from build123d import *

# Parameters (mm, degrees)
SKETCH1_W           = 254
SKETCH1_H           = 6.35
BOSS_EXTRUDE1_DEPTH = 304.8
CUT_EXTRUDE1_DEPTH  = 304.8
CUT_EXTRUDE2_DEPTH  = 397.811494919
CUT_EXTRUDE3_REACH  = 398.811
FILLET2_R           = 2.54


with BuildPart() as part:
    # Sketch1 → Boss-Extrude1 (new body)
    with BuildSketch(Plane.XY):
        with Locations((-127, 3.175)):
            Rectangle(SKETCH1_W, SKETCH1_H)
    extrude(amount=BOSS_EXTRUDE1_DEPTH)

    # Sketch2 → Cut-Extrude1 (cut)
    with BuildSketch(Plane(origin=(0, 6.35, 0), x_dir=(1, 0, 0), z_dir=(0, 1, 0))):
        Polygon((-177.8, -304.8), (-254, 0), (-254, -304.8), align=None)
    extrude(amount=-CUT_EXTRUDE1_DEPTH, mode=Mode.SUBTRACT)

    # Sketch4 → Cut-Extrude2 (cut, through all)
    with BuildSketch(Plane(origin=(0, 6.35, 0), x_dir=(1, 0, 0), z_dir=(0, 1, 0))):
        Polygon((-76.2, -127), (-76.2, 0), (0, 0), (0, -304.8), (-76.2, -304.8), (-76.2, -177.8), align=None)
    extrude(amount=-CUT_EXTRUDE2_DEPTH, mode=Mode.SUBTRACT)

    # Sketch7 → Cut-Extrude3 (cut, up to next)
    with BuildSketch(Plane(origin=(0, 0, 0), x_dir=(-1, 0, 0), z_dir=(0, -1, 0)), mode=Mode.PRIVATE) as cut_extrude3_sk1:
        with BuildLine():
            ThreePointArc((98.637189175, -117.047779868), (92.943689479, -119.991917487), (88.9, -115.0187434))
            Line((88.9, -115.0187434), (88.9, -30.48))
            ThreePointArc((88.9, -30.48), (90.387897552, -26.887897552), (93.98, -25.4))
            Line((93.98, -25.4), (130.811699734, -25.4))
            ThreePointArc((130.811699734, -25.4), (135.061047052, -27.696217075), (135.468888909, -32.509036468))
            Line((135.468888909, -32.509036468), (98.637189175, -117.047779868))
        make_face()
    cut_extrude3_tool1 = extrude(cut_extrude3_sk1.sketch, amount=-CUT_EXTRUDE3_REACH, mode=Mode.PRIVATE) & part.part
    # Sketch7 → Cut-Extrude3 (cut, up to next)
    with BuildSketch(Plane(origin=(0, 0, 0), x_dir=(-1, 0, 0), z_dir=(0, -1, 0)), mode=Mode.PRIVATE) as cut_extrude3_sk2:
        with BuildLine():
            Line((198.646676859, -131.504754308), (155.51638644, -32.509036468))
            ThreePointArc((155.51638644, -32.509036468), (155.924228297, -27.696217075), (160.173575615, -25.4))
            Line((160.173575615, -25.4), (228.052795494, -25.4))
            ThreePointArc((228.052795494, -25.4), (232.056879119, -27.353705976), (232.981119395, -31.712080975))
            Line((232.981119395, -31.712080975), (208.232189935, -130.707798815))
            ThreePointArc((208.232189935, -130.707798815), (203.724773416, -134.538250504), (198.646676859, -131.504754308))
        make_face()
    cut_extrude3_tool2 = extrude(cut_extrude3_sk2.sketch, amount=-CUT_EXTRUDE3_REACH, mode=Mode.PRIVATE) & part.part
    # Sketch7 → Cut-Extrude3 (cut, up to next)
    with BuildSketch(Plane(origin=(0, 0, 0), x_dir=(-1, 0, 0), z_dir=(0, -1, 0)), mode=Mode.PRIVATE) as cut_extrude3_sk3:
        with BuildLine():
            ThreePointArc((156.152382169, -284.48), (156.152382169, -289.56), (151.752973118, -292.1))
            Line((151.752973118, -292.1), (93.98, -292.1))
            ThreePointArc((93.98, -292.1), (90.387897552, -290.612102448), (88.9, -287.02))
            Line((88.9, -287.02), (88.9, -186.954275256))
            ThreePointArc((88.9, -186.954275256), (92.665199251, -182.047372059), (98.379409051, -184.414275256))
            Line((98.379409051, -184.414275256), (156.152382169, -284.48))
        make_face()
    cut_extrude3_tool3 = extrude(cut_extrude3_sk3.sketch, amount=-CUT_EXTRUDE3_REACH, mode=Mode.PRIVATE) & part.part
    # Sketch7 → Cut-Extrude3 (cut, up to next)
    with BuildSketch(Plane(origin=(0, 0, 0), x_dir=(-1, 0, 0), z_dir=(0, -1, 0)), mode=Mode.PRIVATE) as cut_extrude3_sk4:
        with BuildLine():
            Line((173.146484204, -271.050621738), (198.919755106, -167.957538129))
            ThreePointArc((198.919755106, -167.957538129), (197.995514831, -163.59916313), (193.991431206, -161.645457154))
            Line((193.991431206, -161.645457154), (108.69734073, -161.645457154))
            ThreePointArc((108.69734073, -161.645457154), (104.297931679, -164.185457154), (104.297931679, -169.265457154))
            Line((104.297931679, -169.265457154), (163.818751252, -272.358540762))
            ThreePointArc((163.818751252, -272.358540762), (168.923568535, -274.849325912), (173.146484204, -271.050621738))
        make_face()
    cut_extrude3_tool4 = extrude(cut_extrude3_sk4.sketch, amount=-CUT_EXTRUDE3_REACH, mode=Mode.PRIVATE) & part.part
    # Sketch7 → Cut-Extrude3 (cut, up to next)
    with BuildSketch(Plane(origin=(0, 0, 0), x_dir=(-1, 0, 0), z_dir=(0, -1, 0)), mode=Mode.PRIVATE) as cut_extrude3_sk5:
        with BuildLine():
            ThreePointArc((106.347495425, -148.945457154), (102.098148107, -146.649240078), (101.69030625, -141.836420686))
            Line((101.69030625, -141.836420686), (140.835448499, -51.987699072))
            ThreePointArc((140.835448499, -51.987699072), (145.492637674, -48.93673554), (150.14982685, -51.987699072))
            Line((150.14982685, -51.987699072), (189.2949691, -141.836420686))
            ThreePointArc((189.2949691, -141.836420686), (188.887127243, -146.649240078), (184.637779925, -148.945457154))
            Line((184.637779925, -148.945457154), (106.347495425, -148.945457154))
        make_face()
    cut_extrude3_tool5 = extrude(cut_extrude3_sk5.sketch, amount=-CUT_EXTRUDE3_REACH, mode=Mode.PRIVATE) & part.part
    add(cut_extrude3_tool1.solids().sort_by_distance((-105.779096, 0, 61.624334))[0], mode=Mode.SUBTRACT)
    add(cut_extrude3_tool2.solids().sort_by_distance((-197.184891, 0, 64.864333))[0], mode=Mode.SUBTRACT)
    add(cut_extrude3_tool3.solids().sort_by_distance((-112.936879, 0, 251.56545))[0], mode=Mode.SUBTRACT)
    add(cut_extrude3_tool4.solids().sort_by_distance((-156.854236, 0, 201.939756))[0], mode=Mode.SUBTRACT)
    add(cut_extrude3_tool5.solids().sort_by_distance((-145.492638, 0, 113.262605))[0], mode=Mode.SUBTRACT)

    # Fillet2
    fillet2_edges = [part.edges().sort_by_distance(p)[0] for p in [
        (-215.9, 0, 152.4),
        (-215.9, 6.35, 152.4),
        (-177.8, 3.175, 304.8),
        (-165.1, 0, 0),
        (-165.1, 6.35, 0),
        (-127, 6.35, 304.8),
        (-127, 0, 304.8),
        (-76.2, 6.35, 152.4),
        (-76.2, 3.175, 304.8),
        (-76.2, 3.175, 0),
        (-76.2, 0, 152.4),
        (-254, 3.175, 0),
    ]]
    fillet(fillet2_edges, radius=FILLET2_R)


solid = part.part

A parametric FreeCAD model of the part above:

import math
import FreeCAD as App
import Part
import Sketcher
Q = App.Units.Quantity


def edges_at(feature, points):
    """Names of the edges that pass closest to the given points."""
    edges = feature.Shape.Edges
    near = lambda p: min(range(len(edges)), key=lambda i: edges[i].distToShape(Part.Vertex(*p))[0])
    return sorted({f"Edge{near(p) + 1}" for p in points})

doc = App.newDocument("Part")
body = doc.addObject("PartDesign::Body", "Body")

# Sketch on XY plane
sketch1 = body.newObject("Sketcher::SketchObject", "Sketch")
sketch1.AttachmentSupport = (doc.getObject("XY_Plane"), [""])
sketch1.MapMode = "FlatFace"
sketch1.addGeometry(Part.LineSegment(App.Vector(-254, 6, 0), App.Vector(-254, 0, 0)), False)
sketch1.addGeometry(Part.LineSegment(App.Vector(-254, 0, 0), App.Vector(0, 0, 0)), False)
sketch1.addGeometry(Part.LineSegment(App.Vector(0, 0, 0), App.Vector(0, 6, 0)), False)
sketch1.addGeometry(Part.LineSegment(App.Vector(0, 6, 0), App.Vector(-254, 6, 0)), False)
sketch1.addConstraint(Sketcher.Constraint("Coincident", 0, 2, 1, 1))
sketch1.addConstraint(Sketcher.Constraint("Coincident", 1, 2, 2, 1))
sketch1.addConstraint(Sketcher.Constraint("Coincident", 2, 2, 3, 1))
sketch1.addConstraint(Sketcher.Constraint("Coincident", 3, 2, 0, 1))
sketch1.addConstraint(Sketcher.Constraint("Vertical", 0))
sketch1.addConstraint(Sketcher.Constraint("Horizontal", 1))
sketch1.addConstraint(Sketcher.Constraint("Vertical", 2))
sketch1.addConstraint(Sketcher.Constraint("Horizontal", 3))
sketch1.addConstraint(Sketcher.Constraint("Coincident", 1, 2, -1, 1))
sketch1.addConstraint(Sketcher.Constraint("DistanceX", 1, 1, 1, 2, Q("10 in")))
sketch1.addConstraint(Sketcher.Constraint("DistanceY", 0, 2, 0, 1, Q("0.25 in")))
pad1 = body.newObject("PartDesign::Pad", "Pad")
pad1.Profile = sketch1
pad1.Length = Q("12 in")

# Sketch on XZ plane
sketch2 = body.newObject("Sketcher::SketchObject", "Sketch001")
sketch2.AttachmentSupport = (doc.getObject("XZ_Plane"), [""])
sketch2.MapMode = "FlatFace"
sketch2.AttachmentOffset = App.Placement(App.Vector(0, 0, -0.25 * 25.4), App.Rotation())
sketch2.addGeometry(Part.LineSegment(App.Vector(-178, 305, 0), App.Vector(-254, 0, 0)), False)
sketch2.addGeometry(Part.LineSegment(App.Vector(-254, 0, 0), App.Vector(-254, 305, 0)), False)
sketch2.addGeometry(Part.LineSegment(App.Vector(-254, 305, 0), App.Vector(-178, 305, 0)), False)
sketch2.addConstraint(Sketcher.Constraint("Coincident", 0, 2, 1, 1))
sketch2.addConstraint(Sketcher.Constraint("Coincident", 1, 2, 2, 1))
sketch2.addConstraint(Sketcher.Constraint("Coincident", 2, 2, 0, 1))
sketch2.addConstraint(Sketcher.Constraint("Vertical", 1))
sketch2.addConstraint(Sketcher.Constraint("Horizontal", 2))
sketch2.addConstraint(Sketcher.Constraint("PointOnObject", 0, 2, -1))
sketch2.addConstraint(Sketcher.Constraint("DistanceX", 2, 1, 2, 2, Q("3 in")))
sketch2.addConstraint(Sketcher.Constraint("DistanceY", 1, 1, 1, 2, Q("12 in")))
sketch2.addConstraint(Sketcher.Constraint("DistanceX", 0, 2, -1, 1, Q("10 in")))
pocket1 = body.newObject("PartDesign::Pocket", "Pocket")
pocket1.Profile = sketch2
pocket1.Length = Q("12 in")
pocket1.Reversed = True

# Sketch on XZ plane
sketch3 = body.newObject("Sketcher::SketchObject", "Sketch002")
sketch3.AttachmentSupport = (doc.getObject("XZ_Plane"), [""])
sketch3.MapMode = "FlatFace"
sketch3.AttachmentOffset = App.Placement(App.Vector(0, 0, -0.25 * 25.4), App.Rotation())
sketch3.addGeometry(Part.LineSegment(App.Vector(-76, 0, 0), App.Vector(-76, 305, 0)), False)
sketch3.addGeometry(Part.LineSegment(App.Vector(-76, 305, 0), App.Vector(0, 305, 0)), False)
sketch3.addGeometry(Part.LineSegment(App.Vector(0, 305, 0), App.Vector(0, 0, 0)), False)
sketch3.addGeometry(Part.LineSegment(App.Vector(0, 0, 0), App.Vector(-76, 0, 0)), False)
sketch3.addConstraint(Sketcher.Constraint("Coincident", 0, 2, 1, 1))
sketch3.addConstraint(Sketcher.Constraint("Coincident", 1, 2, 2, 1))
sketch3.addConstraint(Sketcher.Constraint("Coincident", 2, 2, 3, 1))
sketch3.addConstraint(Sketcher.Constraint("Coincident", 3, 2, 0, 1))
sketch3.addConstraint(Sketcher.Constraint("Vertical", 0))
sketch3.addConstraint(Sketcher.Constraint("Horizontal", 1))
sketch3.addConstraint(Sketcher.Constraint("Vertical", 2))
sketch3.addConstraint(Sketcher.Constraint("Horizontal", 3))
sketch3.addConstraint(Sketcher.Constraint("Coincident", 2, 2, -1, 1))
sketch3.addConstraint(Sketcher.Constraint("DistanceX", 1, 1, 1, 2, Q("3 in")))
sketch3.addConstraint(Sketcher.Constraint("DistanceY", 0, 1, 0, 2, Q("12 in")))
pocket2 = body.newObject("PartDesign::Pocket", "Pocket001")
pocket2.Profile = sketch3
pocket2.Type = "ThroughAll"
pocket2.Reversed = True

# Sketch on XZ plane
sketch4 = body.newObject("Sketcher::SketchObject", "Sketch003")
sketch4.AttachmentSupport = (doc.getObject("XZ_Plane"), [""])
sketch4.MapMode = "FlatFace"
sketch4.addGeometry(Part.ArcOfCircle(Part.Circle(App.Vector(-94, 115, 0), App.Vector(0, 0, 1), 5), math.radians(0), math.radians(156)), False)
sketch4.addGeometry(Part.LineSegment(App.Vector(-99, 117, 0), App.Vector(-135, 33, 0)), False)
sketch4.addGeometry(Part.ArcOfCircle(Part.Circle(App.Vector(-131, 30, 0), App.Vector(0, 0, 1), 5), math.radians(156), math.radians(270)), False)
sketch4.addGeometry(Part.LineSegment(App.Vector(-131, 25, 0), App.Vector(-94, 25, 0)), False)
sketch4.addGeometry(Part.ArcOfCircle(Part.Circle(App.Vector(-94, 30, 0), App.Vector(0, 0, 1), 5), math.radians(-90), math.radians(0)), False)
sketch4.addGeometry(Part.LineSegment(App.Vector(-89, 30, 0), App.Vector(-89, 115, 0)), False)
sketch4.addConstraint(Sketcher.Constraint("Tangent", 0, 2, 1, 1))
sketch4.addConstraint(Sketcher.Constraint("Tangent", 1, 2, 2, 1))
sketch4.addConstraint(Sketcher.Constraint("Tangent", 2, 2, 3, 1))
sketch4.addConstraint(Sketcher.Constraint("Tangent", 3, 2, 4, 1))
sketch4.addConstraint(Sketcher.Constraint("Tangent", 4, 2, 5, 1))
sketch4.addConstraint(Sketcher.Constraint("Tangent", 5, 2, 0, 1))
sketch4.addConstraint(Sketcher.Constraint("Horizontal", 3))
sketch4.addConstraint(Sketcher.Constraint("Vertical", 5))
sketch4.addConstraint(Sketcher.Constraint("Equal", 0, 2))
sketch4.addConstraint(Sketcher.Constraint("Equal", 2, 4))
sketch4.addConstraint(Sketcher.Constraint("Radius", 0, Q("0.2 in")))
sketch4.addConstraint(Sketcher.Constraint("DistanceY", -1, 1, 2, 2, Q("1 in")))
sketch4.addConstraint(Sketcher.Constraint("DistanceX", 0, 3, -1, 1, Q("3.7 in")))
sketch4.addConstraint(Sketcher.Constraint("DistanceX", 3, 1, 3, 2, 36.8317))
sketch4.addConstraint(Sketcher.Constraint("DistanceY", 5, 1, 5, 2, 84.538743))
pocket3 = body.newObject("PartDesign::Pocket", "Pocket002")
pocket3.Profile = sketch4
pocket3.Type = "UpToFirst"

# Sketch on XZ plane
sketch5 = body.newObject("Sketcher::SketchObject", "Sketch004")
sketch5.AttachmentSupport = (doc.getObject("XZ_Plane"), [""])
sketch5.MapMode = "FlatFace"
sketch5.addGeometry(Part.LineSegment(App.Vector(-156, 33, 0), App.Vector(-199, 132, 0)), False)
sketch5.addGeometry(Part.ArcOfCircle(Part.Circle(App.Vector(-203, 129, 0), App.Vector(0, 0, 1), 5), math.radians(24), math.radians(166)), False)
sketch5.addGeometry(Part.LineSegment(App.Vector(-208, 131, 0), App.Vector(-233, 32, 0)), False)
sketch5.addGeometry(Part.ArcOfCircle(Part.Circle(App.Vector(-228, 30, 0), App.Vector(0, 0, 1), 5), math.radians(166), math.radians(270)), False)
sketch5.addGeometry(Part.LineSegment(App.Vector(-228, 25, 0), App.Vector(-160, 25, 0)), False)
sketch5.addGeometry(Part.ArcOfCircle(Part.Circle(App.Vector(-160, 30, 0), App.Vector(0, 0, 1), 5), math.radians(-90), math.radians(24)), False)
sketch5.addConstraint(Sketcher.Constraint("Tangent", 0, 2, 1, 1))
sketch5.addConstraint(Sketcher.Constraint("Tangent", 1, 2, 2, 1))
sketch5.addConstraint(Sketcher.Constraint("Tangent", 2, 2, 3, 1))
sketch5.addConstraint(Sketcher.Constraint("Tangent", 3, 2, 4, 1))
sketch5.addConstraint(Sketcher.Constraint("Tangent", 4, 2, 5, 1))
sketch5.addConstraint(Sketcher.Constraint("Tangent", 5, 2, 0, 1))
sketch5.addConstraint(Sketcher.Constraint("Horizontal", 4))
sketch5.addConstraint(Sketcher.Constraint("Equal", 1, 3))
sketch5.addConstraint(Sketcher.Constraint("Equal", 3, 5))
sketch5.addConstraint(Sketcher.Constraint("Radius", 1, Q("0.2 in")))
sketch5.addConstraint(Sketcher.Constraint("DistanceY", -1, 1, 3, 2, Q("1 in")))
sketch5.addConstraint(Sketcher.Constraint("DistanceX", 4, 1, 4, 2, 67.87922))
sketch5.addConstraint(Sketcher.Constraint("DistanceY", -1, 1, 1, 2, 130.707799))
sketch5.addConstraint(Sketcher.Constraint("DistanceX", 0, 2, 5, 3, 38.473101))
sketch5.addConstraint(Sketcher.Constraint("DistanceX", 1, 2, -1, 1, 208.23219))
pocket4 = body.newObject("PartDesign::Pocket", "Pocket003")
pocket4.Profile = sketch5
pocket4.Type = "UpToFirst"

# Sketch on XZ plane
sketch6 = body.newObject("Sketcher::SketchObject", "Sketch005")
sketch6.AttachmentSupport = (doc.getObject("XZ_Plane"), [""])
sketch6.MapMode = "FlatFace"
sketch6.addGeometry(Part.ArcOfCircle(Part.Circle(App.Vector(-152, 287, 0), App.Vector(0, 0, 1), 5), math.radians(90), math.radians(210)), False)
sketch6.addGeometry(Part.LineSegment(App.Vector(-156, 284, 0), App.Vector(-98, 184, 0)), False)
sketch6.addGeometry(Part.ArcOfCircle(Part.Circle(App.Vector(-94, 187, 0), App.Vector(0, 0, 1), 5), math.radians(-150), math.radians(0)), False)
sketch6.addGeometry(Part.LineSegment(App.Vector(-89, 187, 0), App.Vector(-89, 287, 0)), False)
sketch6.addGeometry(Part.ArcOfCircle(Part.Circle(App.Vector(-94, 287, 0), App.Vector(0, 0, 1), 5), math.radians(0), math.radians(90)), False)
sketch6.addGeometry(Part.LineSegment(App.Vector(-94, 292, 0), App.Vector(-152, 292, 0)), False)
sketch6.addConstraint(Sketcher.Constraint("Tangent", 0, 2, 1, 1))
sketch6.addConstraint(Sketcher.Constraint("Tangent", 1, 2, 2, 1))
sketch6.addConstraint(Sketcher.Constraint("Tangent", 2, 2, 3, 1))
sketch6.addConstraint(Sketcher.Constraint("Tangent", 3, 2, 4, 1))
sketch6.addConstraint(Sketcher.Constraint("Tangent", 4, 2, 5, 1))
sketch6.addConstraint(Sketcher.Constraint("Tangent", 5, 2, 0, 1))
sketch6.addConstraint(Sketcher.Constraint("Vertical", 3))
sketch6.addConstraint(Sketcher.Constraint("Horizontal", 5))
sketch6.addConstraint(Sketcher.Constraint("Equal", 0, 2))
sketch6.addConstraint(Sketcher.Constraint("Equal", 2, 4))
sketch6.addConstraint(Sketcher.Constraint("Radius", 0, Q("0.2 in")))
sketch6.addConstraint(Sketcher.Constraint("Angle", 1, Q("-60 deg")))
sketch6.addConstraint(Sketcher.Constraint("DistanceY", -1, 1, 0, 3, Q("11.3 in")))
sketch6.addConstraint(Sketcher.Constraint("DistanceX", 2, 3, -1, 1, Q("3.7 in")))
sketch6.addConstraint(Sketcher.Constraint("DistanceX", 5, 2, 5, 1, 57.772973))
pocket5 = body.newObject("PartDesign::Pocket", "Pocket004")
pocket5.Profile = sketch6
pocket5.Type = "UpToFirst"

# Sketch on XZ plane
sketch7 = body.newObject("Sketcher::SketchObject", "Sketch006")
sketch7.AttachmentSupport = (doc.getObject("XZ_Plane"), [""])
sketch7.MapMode = "FlatFace"
sketch7.addGeometry(Part.LineSegment(App.Vector(-173, 271, 0), App.Vector(-199, 168, 0)), False)
sketch7.addGeometry(Part.ArcOfCircle(Part.Circle(App.Vector(-194, 167, 0), App.Vector(0, 0, 1), 5), math.radians(166), math.radians(270)), False)
sketch7.addGeometry(Part.LineSegment(App.Vector(-194, 162, 0), App.Vector(-109, 162, 0)), False)
sketch7.addGeometry(Part.ArcOfCircle(Part.Circle(App.Vector(-109, 167, 0), App.Vector(0, 0, 1), 5), math.radians(-90), math.radians(30)), False)
sketch7.addGeometry(Part.LineSegment(App.Vector(-104, 169, 0), App.Vector(-164, 272, 0)), False)
sketch7.addGeometry(Part.ArcOfCircle(Part.Circle(App.Vector(-168, 270, 0), App.Vector(0, 0, 1), 5), math.radians(30), math.radians(166)), False)
sketch7.addConstraint(Sketcher.Constraint("Tangent", 0, 2, 1, 1))
sketch7.addConstraint(Sketcher.Constraint("Tangent", 1, 2, 2, 1))
sketch7.addConstraint(Sketcher.Constraint("Tangent", 2, 2, 3, 1))
sketch7.addConstraint(Sketcher.Constraint("Tangent", 3, 2, 4, 1))
sketch7.addConstraint(Sketcher.Constraint("Tangent", 4, 2, 5, 1))
sketch7.addConstraint(Sketcher.Constraint("Tangent", 5, 2, 0, 1))
sketch7.addConstraint(Sketcher.Constraint("Horizontal", 2))
sketch7.addConstraint(Sketcher.Constraint("Equal", 1, 3))
sketch7.addConstraint(Sketcher.Constraint("Equal", 3, 5))
sketch7.addConstraint(Sketcher.Constraint("Radius", 1, Q("0.2 in")))
sketch7.addConstraint(Sketcher.Constraint("Angle", 4, Q("120 deg")))
sketch7.addConstraint(Sketcher.Constraint("DistanceX", 2, 1, 2, 2, 85.29409))
sketch7.addConstraint(Sketcher.Constraint("Distance", 0, 106.265918))
sketch7.addConstraint(Sketcher.Constraint("DistanceX", 1, 3, -1, 1, 193.991431))
sketch7.addConstraint(Sketcher.Constraint("DistanceY", -1, 1, 5, 3, 269.818541))
pocket6 = body.newObject("PartDesign::Pocket", "Pocket005")
pocket6.Profile = sketch7
pocket6.Type = "UpToFirst"

# Sketch on XZ plane
sketch8 = body.newObject("Sketcher::SketchObject", "Sketch007")
sketch8.AttachmentSupport = (doc.getObject("XZ_Plane"), [""])
sketch8.MapMode = "FlatFace"
sketch8.addGeometry(Part.ArcOfCircle(Part.Circle(App.Vector(-106, 144, 0), App.Vector(0, 0, 1), 5), math.radians(-24), math.radians(90)), False)
sketch8.addGeometry(Part.LineSegment(App.Vector(-106, 149, 0), App.Vector(-185, 149, 0)), False)
sketch8.addGeometry(Part.ArcOfCircle(Part.Circle(App.Vector(-185, 144, 0), App.Vector(0, 0, 1), 5), math.radians(90), math.radians(204)), False)
sketch8.addGeometry(Part.LineSegment(App.Vector(-189, 142, 0), App.Vector(-150, 52, 0)), False)
sketch8.addGeometry(Part.ArcOfCircle(Part.Circle(App.Vector(-145, 54, 0), App.Vector(0, 0, 1), 5), math.radians(-156), math.radians(-24)), False)
sketch8.addGeometry(Part.LineSegment(App.Vector(-141, 52, 0), App.Vector(-102, 142, 0)), False)
sketch8.addConstraint(Sketcher.Constraint("Tangent", 0, 2, 1, 1))
sketch8.addConstraint(Sketcher.Constraint("Tangent", 1, 2, 2, 1))
sketch8.addConstraint(Sketcher.Constraint("Tangent", 2, 2, 3, 1))
sketch8.addConstraint(Sketcher.Constraint("Tangent", 3, 2, 4, 1))
sketch8.addConstraint(Sketcher.Constraint("Tangent", 4, 2, 5, 1))
sketch8.addConstraint(Sketcher.Constraint("Tangent", 5, 2, 0, 1))
sketch8.addConstraint(Sketcher.Constraint("Horizontal", 1))
sketch8.addConstraint(Sketcher.Constraint("Equal", 0, 2))
sketch8.addConstraint(Sketcher.Constraint("Equal", 2, 4))
sketch8.addConstraint(Sketcher.Constraint("Horizontal", 3, 2, 4, 2))
sketch8.addConstraint(Sketcher.Constraint("Radius", 0, Q("0.2 in")))
sketch8.addConstraint(Sketcher.Constraint("DistanceY", -1, 1, 3, 2, 51.987699))
sketch8.addConstraint(Sketcher.Constraint("Distance", 3, 98.00579))
sketch8.addConstraint(Sketcher.Constraint("DistanceX", 1, 2, 1, 1, 78.290284))
sketch8.addConstraint(Sketcher.Constraint("DistanceX", 2, 3, -1, 1, 184.63778))
pocket7 = body.newObject("PartDesign::Pocket", "Pocket006")
pocket7.Profile = sketch8
pocket7.Type = "UpToFirst"
doc.recompute()

fillet = body.newObject("PartDesign::Fillet", "Fillet")
fillet.Base = (pocket7, edges_at(pocket7, [
    (-215.9, 0, 152.4),
    (-215.9, 6.35, 152.4),
    (-177.8, 3.175, 304.8),
    (-165.1, 0, 0),
    (-165.1, 6.35, 0),
    (-127, 6.35, 304.8),
    (-127, 0, 304.8),
    (-76.2, 6.35, 152.4),
    (-76.2, 3.175, 304.8),
    (-76.2, 3.175, 0),
    (-76.2, 0, 152.4),
    (-254, 3.175, 0),
]))
fillet.Radius = Q("0.1 in")

doc.recompute()
